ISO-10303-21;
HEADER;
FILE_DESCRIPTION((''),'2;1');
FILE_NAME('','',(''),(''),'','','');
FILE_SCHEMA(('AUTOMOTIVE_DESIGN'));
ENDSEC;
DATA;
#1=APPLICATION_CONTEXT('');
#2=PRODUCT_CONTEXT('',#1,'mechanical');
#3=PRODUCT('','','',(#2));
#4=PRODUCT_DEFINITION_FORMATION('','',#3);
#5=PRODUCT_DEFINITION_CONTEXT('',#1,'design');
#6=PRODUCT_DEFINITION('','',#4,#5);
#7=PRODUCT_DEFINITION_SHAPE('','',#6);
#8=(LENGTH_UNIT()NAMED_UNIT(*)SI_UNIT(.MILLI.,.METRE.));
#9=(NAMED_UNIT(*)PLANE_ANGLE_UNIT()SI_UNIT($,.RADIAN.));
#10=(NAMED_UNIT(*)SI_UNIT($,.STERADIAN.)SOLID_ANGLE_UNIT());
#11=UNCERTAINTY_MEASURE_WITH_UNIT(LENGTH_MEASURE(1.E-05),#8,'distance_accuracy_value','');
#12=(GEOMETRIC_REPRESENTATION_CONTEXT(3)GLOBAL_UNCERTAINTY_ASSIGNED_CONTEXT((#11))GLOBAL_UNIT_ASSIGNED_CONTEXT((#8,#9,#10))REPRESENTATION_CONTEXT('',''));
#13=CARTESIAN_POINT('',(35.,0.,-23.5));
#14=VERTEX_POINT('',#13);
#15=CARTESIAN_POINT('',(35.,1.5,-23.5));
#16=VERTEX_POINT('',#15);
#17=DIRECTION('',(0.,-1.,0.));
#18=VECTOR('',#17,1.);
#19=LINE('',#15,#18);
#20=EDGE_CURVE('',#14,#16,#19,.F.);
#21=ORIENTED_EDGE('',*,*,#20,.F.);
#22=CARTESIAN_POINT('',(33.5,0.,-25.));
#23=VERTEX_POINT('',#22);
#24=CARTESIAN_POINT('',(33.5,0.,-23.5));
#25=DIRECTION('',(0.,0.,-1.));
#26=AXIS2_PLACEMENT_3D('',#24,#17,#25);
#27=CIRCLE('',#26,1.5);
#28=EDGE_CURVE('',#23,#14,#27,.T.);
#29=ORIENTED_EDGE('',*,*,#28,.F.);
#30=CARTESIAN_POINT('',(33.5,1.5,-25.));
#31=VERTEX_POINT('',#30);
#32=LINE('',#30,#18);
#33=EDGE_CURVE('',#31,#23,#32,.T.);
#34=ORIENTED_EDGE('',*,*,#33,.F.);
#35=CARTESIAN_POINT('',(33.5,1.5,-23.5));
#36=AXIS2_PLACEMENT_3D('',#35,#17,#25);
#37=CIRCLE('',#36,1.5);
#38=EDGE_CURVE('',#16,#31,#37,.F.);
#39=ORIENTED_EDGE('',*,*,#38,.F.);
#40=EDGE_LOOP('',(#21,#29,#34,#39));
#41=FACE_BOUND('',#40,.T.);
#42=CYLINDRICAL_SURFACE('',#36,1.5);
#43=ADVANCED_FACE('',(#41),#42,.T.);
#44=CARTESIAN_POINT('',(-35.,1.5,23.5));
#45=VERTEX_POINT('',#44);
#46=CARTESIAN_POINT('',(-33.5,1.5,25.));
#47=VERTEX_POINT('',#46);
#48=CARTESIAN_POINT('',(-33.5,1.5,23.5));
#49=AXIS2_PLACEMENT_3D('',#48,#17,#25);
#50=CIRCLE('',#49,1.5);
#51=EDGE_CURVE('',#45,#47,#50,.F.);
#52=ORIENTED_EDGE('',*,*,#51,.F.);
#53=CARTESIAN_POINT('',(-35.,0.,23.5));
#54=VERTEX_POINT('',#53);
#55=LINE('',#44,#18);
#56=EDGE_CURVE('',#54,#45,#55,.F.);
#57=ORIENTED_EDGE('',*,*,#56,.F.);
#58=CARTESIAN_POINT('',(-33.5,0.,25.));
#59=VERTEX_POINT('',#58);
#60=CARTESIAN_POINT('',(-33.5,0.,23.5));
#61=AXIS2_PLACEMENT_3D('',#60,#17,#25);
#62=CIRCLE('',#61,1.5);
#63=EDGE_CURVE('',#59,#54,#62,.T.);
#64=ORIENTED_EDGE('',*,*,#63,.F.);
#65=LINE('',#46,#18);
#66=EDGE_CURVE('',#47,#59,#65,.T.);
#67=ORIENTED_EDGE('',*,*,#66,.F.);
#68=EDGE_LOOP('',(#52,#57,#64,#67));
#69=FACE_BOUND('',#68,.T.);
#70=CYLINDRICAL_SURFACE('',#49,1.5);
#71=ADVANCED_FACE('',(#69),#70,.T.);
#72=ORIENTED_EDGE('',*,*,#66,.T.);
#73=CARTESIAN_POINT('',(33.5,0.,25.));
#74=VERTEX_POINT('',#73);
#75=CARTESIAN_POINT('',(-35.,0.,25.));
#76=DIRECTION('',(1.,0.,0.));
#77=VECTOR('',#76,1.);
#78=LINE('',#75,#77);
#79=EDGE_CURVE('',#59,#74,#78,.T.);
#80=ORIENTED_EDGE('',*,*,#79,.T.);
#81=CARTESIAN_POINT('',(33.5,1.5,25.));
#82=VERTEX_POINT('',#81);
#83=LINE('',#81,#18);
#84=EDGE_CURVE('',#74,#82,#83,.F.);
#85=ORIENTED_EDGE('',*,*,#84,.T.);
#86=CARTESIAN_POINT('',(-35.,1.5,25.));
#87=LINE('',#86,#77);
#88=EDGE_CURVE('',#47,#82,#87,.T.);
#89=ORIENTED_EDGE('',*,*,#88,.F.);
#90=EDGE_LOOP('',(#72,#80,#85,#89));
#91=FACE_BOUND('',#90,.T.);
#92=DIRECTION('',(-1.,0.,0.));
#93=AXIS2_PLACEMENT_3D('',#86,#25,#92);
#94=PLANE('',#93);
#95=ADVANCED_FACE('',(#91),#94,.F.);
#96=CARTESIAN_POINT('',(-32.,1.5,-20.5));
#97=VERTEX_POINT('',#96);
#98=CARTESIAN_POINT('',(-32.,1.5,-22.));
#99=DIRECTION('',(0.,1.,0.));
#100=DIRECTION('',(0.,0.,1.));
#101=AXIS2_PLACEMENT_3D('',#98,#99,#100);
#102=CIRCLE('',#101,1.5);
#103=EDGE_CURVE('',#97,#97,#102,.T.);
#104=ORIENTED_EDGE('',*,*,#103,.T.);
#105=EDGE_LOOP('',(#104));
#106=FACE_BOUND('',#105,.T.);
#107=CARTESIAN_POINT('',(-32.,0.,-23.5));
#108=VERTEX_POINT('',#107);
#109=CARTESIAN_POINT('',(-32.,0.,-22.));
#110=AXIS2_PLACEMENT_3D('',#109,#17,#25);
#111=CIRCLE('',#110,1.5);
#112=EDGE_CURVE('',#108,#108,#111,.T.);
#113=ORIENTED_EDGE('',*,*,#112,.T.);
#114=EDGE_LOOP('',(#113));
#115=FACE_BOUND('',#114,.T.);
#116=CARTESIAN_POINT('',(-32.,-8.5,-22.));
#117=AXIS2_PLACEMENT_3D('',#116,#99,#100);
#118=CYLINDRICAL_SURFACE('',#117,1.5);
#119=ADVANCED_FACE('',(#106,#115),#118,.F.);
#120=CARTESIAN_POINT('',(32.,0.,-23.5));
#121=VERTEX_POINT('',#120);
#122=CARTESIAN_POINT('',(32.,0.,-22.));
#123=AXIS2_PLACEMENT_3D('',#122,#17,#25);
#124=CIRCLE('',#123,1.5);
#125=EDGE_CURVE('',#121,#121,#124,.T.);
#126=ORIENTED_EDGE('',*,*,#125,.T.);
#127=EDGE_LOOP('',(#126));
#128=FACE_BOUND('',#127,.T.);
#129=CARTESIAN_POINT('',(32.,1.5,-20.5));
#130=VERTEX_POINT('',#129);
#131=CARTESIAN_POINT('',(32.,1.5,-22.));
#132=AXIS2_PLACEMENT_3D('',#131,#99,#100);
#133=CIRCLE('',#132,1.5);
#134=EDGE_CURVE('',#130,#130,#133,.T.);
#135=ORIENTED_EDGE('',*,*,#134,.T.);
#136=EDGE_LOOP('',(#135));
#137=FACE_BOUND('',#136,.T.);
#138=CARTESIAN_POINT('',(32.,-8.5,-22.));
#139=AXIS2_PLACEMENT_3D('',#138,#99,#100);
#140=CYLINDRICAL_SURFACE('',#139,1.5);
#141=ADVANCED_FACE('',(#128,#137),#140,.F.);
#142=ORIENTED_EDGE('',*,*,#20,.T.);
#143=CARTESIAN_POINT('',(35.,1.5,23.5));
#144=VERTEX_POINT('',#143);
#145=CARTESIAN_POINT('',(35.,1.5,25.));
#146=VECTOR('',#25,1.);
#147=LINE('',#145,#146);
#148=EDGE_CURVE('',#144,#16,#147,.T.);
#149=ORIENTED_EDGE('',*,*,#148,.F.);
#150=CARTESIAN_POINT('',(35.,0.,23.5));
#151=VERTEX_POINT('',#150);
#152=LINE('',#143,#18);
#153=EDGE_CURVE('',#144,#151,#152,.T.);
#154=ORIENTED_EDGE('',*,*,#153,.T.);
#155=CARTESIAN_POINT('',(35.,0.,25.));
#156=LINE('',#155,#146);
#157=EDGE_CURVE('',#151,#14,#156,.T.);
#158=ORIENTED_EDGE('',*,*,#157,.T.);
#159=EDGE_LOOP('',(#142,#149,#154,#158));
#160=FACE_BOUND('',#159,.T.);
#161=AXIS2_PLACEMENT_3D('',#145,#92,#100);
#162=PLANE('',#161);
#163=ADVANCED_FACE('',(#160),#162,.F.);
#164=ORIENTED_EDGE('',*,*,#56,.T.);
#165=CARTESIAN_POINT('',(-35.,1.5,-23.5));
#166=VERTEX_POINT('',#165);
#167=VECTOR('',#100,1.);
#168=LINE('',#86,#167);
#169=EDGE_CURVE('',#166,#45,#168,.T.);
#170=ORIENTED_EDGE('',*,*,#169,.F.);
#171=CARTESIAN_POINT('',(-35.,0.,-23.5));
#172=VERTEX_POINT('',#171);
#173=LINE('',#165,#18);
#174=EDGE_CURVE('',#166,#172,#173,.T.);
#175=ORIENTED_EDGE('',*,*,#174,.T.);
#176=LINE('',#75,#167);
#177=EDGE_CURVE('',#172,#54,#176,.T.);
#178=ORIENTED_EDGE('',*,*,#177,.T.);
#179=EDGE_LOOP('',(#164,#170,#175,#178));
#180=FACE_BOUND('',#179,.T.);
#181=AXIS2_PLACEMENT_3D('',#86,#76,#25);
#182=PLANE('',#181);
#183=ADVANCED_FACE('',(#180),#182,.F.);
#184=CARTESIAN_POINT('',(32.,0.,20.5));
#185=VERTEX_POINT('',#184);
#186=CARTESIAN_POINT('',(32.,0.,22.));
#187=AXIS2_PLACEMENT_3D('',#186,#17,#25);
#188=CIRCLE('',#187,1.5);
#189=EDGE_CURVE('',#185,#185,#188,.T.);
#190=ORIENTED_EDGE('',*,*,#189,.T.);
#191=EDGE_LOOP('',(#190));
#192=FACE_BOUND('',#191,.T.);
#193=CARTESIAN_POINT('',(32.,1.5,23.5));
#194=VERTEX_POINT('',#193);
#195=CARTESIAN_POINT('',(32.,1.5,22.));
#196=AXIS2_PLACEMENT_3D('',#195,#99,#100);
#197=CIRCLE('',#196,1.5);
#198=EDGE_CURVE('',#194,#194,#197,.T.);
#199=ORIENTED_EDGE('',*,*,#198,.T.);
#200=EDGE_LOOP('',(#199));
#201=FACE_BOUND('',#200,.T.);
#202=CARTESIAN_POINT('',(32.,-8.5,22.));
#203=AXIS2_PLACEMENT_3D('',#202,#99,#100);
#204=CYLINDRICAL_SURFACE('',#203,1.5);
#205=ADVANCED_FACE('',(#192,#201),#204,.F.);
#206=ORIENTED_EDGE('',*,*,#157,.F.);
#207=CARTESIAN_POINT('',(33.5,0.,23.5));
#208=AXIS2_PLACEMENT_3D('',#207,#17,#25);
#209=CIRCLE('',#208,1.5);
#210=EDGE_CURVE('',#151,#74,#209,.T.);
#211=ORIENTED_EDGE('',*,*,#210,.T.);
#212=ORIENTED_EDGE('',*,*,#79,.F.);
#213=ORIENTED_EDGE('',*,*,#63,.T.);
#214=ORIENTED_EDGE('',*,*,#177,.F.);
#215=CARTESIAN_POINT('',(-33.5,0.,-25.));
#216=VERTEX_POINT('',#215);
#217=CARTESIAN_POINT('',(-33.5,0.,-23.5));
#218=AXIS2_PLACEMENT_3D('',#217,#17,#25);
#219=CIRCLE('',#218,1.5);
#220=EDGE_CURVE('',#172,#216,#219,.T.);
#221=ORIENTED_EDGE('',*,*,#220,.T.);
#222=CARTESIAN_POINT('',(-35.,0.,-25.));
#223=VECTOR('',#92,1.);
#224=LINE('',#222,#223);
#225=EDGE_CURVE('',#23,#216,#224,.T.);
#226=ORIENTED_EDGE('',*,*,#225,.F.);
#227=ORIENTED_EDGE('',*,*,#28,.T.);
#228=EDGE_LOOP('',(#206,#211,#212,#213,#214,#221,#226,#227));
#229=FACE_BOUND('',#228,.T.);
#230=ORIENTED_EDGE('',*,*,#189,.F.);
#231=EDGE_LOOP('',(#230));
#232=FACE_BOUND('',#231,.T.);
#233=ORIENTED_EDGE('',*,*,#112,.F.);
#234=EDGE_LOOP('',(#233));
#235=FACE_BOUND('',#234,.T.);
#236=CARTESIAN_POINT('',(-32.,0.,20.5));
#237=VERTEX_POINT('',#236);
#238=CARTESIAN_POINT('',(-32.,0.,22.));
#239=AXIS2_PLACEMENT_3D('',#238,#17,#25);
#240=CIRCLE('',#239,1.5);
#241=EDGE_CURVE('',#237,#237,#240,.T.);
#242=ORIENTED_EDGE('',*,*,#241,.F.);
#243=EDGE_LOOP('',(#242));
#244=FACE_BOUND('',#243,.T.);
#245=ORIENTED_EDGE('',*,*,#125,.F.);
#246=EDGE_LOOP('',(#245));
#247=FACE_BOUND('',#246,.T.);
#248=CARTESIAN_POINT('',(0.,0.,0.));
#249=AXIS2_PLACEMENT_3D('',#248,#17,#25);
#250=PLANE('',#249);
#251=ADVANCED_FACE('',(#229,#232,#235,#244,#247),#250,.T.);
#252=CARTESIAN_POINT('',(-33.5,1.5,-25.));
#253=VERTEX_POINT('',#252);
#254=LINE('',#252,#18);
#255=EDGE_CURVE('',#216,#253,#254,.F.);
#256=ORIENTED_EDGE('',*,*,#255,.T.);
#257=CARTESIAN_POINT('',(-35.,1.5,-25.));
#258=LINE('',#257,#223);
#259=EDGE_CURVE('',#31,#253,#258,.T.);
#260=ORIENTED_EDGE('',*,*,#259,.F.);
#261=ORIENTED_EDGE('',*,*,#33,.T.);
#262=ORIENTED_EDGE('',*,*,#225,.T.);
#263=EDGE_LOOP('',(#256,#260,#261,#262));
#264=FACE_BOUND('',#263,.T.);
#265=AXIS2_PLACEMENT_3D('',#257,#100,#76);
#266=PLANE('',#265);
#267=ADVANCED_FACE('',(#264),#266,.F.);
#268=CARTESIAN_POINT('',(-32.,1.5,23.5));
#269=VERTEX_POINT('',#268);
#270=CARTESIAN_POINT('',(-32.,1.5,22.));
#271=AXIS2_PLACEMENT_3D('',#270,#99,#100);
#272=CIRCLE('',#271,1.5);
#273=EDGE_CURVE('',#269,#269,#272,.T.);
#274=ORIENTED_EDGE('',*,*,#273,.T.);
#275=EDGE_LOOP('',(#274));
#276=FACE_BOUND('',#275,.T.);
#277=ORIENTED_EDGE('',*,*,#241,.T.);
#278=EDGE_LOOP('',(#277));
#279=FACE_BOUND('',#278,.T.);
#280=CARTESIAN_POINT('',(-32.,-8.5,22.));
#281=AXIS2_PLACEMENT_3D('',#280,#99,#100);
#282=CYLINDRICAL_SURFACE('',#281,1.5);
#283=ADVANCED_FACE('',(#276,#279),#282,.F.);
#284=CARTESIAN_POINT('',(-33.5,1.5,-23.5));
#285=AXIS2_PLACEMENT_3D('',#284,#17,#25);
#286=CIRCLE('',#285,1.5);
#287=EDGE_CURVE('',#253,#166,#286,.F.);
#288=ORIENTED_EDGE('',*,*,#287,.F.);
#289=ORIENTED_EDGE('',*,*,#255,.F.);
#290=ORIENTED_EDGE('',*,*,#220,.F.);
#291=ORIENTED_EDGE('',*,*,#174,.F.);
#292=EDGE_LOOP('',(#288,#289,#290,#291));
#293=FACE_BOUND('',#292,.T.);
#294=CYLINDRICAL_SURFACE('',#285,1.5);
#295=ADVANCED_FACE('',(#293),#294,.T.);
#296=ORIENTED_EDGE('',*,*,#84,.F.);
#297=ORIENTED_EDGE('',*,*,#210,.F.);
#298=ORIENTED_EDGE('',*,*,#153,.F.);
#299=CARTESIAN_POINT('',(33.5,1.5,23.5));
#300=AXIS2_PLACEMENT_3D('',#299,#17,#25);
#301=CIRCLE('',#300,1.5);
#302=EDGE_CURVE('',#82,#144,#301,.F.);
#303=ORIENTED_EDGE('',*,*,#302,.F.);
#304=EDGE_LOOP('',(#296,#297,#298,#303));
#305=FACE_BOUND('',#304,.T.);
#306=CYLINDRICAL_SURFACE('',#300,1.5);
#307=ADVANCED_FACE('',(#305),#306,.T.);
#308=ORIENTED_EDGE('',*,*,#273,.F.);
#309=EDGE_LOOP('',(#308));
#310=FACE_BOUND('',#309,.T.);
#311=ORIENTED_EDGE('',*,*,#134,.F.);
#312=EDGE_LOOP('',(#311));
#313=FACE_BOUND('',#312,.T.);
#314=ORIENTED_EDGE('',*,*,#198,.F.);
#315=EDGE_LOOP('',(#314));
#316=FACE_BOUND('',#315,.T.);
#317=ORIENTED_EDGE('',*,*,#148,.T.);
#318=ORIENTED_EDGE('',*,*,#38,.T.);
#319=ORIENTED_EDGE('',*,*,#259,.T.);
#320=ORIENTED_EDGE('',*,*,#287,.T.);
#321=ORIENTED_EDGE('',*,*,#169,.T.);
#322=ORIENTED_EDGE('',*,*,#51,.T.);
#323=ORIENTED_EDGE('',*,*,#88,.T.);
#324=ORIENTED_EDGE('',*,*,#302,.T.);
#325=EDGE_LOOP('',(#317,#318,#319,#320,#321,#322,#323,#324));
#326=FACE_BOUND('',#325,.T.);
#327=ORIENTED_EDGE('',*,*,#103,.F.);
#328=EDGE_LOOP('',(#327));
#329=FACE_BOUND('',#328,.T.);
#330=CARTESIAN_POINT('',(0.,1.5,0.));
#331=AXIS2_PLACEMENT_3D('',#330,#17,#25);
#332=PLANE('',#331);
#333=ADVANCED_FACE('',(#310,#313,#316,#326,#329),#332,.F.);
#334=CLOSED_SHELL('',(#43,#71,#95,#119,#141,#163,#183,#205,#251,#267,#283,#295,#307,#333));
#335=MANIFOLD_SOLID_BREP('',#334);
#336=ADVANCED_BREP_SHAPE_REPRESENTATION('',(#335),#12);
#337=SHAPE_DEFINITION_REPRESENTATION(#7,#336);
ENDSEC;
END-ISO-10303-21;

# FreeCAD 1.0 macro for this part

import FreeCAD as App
import Part
import Sketcher
from FreeCAD import Vector
Q = App.Units.Quantity


def edges_at(feature, points):
    """Names of the edges that pass closest to the given points."""
    edges = feature.Shape.Edges
    near = lambda p: min(range(len(edges)), key=lambda i: edges[i].distToShape(Part.Vertex(*p))[0])
    return sorted({f"Edge{near(p) + 1}" for p in points})

doc = App.newDocument("Part")
body = doc.addObject("PartDesign::Body", "Body")

sketch1 = body.newObject("Sketcher::SketchObject", "Sketch")
sketch1.AttachmentSupport = (doc.getObject("XZ_Plane"), [""])
sketch1.MapMode = "FlatFace"
sketch1.addGeometry([
    Part.LineSegment(Vector(-35, -25, 0), Vector(-35, 25, 0)),
    Part.LineSegment(Vector(-35, 25, 0), Vector(35, 25, 0)),
    Part.LineSegment(Vector(35, 25, 0), Vector(35, -25, 0)),
    Part.LineSegment(Vector(35, -25, 0), Vector(-35, -25, 0)),
], False)
sketch1.addConstraint([
    Sketcher.Constraint("Coincident", 0, 2, 1, 1),
    Sketcher.Constraint("Coincident", 1, 2, 2, 1),
    Sketcher.Constraint("Coincident", 2, 2, 3, 1),
    Sketcher.Constraint("Coincident", 3, 2, 0, 1),
    Sketcher.Constraint("Vertical", 0),
    Sketcher.Constraint("Horizontal", 1),
    Sketcher.Constraint("Vertical", 2),
    Sketcher.Constraint("Horizontal", 3),
    Sketcher.Constraint("Symmetric", 0, 2, 2, 2, -1, 1),
    Sketcher.Constraint("DistanceX", 1, 1, 1, 2, Q("70 mm")),
    Sketcher.Constraint("DistanceY", 0, 1, 0, 2, Q("50 mm")),
])
pad1 = body.newObject("PartDesign::Pad", "Pad")
pad1.Profile = sketch1
pad1.Length = 1.5
pad1.Reversed = True

sketch2 = body.newObject("Sketcher::SketchObject", "Sketch001")
sketch2.AttachmentSupport = (doc.getObject("XZ_Plane"), [""])
sketch2.MapMode = "FlatFace"
sketch2.AttachmentOffset = App.Placement(Vector(0, 0, -1.5), App.Rotation())
sketch2.addGeometry([
    Part.Circle(Vector(-32, 22, 0), Vector(0, 0, 1), 1.5),
    Part.Circle(Vector(32, 22, 0), Vector(0, 0, 1), 1.5),
    Part.Circle(Vector(32, -22, 0), Vector(0, 0, 1), 1.5),
    Part.Circle(Vector(-32, -22, 0), Vector(0, 0, 1), 1.5),
], False)
sketch2.addConstraint([
    Sketcher.Constraint("Equal", 0, 1),
    Sketcher.Constraint("Equal", 1, 2),
    Sketcher.Constraint("Equal", 2, 3),
    Sketcher.Constraint("Symmetric", 0, 3, 2, 3, -1, 1),
    Sketcher.Constraint("Symmetric", 1, 3, 3, 3, -1, 1),
    Sketcher.Constraint("Symmetric", 0, 3, 1, 3, -2),
    Sketcher.Constraint("Diameter", 0, Q("3 mm")),
    Sketcher.Constraint("DistanceX", 0, 3, -1, 1, Q("32 mm")),
    Sketcher.Constraint("DistanceY", -1, 1, 0, 3, Q("22 mm")),
])
pocket1 = body.newObject("PartDesign::Pocket", "Pocket")
pocket1.Profile = sketch2
pocket1.Length = 10
pocket1.Reversed = True
doc.recompute()

fillet = body.newObject("PartDesign::Fillet", "Fillet")
fillet.Base = (pocket1, edges_at(pocket1, [
    (35, 0.75, 25),
    (-35, 0.75, 25),
    (-35, 0.75, -25),
    (35, 0.75, -25),
]))
fillet.Radius = 1.5

doc.recompute()
